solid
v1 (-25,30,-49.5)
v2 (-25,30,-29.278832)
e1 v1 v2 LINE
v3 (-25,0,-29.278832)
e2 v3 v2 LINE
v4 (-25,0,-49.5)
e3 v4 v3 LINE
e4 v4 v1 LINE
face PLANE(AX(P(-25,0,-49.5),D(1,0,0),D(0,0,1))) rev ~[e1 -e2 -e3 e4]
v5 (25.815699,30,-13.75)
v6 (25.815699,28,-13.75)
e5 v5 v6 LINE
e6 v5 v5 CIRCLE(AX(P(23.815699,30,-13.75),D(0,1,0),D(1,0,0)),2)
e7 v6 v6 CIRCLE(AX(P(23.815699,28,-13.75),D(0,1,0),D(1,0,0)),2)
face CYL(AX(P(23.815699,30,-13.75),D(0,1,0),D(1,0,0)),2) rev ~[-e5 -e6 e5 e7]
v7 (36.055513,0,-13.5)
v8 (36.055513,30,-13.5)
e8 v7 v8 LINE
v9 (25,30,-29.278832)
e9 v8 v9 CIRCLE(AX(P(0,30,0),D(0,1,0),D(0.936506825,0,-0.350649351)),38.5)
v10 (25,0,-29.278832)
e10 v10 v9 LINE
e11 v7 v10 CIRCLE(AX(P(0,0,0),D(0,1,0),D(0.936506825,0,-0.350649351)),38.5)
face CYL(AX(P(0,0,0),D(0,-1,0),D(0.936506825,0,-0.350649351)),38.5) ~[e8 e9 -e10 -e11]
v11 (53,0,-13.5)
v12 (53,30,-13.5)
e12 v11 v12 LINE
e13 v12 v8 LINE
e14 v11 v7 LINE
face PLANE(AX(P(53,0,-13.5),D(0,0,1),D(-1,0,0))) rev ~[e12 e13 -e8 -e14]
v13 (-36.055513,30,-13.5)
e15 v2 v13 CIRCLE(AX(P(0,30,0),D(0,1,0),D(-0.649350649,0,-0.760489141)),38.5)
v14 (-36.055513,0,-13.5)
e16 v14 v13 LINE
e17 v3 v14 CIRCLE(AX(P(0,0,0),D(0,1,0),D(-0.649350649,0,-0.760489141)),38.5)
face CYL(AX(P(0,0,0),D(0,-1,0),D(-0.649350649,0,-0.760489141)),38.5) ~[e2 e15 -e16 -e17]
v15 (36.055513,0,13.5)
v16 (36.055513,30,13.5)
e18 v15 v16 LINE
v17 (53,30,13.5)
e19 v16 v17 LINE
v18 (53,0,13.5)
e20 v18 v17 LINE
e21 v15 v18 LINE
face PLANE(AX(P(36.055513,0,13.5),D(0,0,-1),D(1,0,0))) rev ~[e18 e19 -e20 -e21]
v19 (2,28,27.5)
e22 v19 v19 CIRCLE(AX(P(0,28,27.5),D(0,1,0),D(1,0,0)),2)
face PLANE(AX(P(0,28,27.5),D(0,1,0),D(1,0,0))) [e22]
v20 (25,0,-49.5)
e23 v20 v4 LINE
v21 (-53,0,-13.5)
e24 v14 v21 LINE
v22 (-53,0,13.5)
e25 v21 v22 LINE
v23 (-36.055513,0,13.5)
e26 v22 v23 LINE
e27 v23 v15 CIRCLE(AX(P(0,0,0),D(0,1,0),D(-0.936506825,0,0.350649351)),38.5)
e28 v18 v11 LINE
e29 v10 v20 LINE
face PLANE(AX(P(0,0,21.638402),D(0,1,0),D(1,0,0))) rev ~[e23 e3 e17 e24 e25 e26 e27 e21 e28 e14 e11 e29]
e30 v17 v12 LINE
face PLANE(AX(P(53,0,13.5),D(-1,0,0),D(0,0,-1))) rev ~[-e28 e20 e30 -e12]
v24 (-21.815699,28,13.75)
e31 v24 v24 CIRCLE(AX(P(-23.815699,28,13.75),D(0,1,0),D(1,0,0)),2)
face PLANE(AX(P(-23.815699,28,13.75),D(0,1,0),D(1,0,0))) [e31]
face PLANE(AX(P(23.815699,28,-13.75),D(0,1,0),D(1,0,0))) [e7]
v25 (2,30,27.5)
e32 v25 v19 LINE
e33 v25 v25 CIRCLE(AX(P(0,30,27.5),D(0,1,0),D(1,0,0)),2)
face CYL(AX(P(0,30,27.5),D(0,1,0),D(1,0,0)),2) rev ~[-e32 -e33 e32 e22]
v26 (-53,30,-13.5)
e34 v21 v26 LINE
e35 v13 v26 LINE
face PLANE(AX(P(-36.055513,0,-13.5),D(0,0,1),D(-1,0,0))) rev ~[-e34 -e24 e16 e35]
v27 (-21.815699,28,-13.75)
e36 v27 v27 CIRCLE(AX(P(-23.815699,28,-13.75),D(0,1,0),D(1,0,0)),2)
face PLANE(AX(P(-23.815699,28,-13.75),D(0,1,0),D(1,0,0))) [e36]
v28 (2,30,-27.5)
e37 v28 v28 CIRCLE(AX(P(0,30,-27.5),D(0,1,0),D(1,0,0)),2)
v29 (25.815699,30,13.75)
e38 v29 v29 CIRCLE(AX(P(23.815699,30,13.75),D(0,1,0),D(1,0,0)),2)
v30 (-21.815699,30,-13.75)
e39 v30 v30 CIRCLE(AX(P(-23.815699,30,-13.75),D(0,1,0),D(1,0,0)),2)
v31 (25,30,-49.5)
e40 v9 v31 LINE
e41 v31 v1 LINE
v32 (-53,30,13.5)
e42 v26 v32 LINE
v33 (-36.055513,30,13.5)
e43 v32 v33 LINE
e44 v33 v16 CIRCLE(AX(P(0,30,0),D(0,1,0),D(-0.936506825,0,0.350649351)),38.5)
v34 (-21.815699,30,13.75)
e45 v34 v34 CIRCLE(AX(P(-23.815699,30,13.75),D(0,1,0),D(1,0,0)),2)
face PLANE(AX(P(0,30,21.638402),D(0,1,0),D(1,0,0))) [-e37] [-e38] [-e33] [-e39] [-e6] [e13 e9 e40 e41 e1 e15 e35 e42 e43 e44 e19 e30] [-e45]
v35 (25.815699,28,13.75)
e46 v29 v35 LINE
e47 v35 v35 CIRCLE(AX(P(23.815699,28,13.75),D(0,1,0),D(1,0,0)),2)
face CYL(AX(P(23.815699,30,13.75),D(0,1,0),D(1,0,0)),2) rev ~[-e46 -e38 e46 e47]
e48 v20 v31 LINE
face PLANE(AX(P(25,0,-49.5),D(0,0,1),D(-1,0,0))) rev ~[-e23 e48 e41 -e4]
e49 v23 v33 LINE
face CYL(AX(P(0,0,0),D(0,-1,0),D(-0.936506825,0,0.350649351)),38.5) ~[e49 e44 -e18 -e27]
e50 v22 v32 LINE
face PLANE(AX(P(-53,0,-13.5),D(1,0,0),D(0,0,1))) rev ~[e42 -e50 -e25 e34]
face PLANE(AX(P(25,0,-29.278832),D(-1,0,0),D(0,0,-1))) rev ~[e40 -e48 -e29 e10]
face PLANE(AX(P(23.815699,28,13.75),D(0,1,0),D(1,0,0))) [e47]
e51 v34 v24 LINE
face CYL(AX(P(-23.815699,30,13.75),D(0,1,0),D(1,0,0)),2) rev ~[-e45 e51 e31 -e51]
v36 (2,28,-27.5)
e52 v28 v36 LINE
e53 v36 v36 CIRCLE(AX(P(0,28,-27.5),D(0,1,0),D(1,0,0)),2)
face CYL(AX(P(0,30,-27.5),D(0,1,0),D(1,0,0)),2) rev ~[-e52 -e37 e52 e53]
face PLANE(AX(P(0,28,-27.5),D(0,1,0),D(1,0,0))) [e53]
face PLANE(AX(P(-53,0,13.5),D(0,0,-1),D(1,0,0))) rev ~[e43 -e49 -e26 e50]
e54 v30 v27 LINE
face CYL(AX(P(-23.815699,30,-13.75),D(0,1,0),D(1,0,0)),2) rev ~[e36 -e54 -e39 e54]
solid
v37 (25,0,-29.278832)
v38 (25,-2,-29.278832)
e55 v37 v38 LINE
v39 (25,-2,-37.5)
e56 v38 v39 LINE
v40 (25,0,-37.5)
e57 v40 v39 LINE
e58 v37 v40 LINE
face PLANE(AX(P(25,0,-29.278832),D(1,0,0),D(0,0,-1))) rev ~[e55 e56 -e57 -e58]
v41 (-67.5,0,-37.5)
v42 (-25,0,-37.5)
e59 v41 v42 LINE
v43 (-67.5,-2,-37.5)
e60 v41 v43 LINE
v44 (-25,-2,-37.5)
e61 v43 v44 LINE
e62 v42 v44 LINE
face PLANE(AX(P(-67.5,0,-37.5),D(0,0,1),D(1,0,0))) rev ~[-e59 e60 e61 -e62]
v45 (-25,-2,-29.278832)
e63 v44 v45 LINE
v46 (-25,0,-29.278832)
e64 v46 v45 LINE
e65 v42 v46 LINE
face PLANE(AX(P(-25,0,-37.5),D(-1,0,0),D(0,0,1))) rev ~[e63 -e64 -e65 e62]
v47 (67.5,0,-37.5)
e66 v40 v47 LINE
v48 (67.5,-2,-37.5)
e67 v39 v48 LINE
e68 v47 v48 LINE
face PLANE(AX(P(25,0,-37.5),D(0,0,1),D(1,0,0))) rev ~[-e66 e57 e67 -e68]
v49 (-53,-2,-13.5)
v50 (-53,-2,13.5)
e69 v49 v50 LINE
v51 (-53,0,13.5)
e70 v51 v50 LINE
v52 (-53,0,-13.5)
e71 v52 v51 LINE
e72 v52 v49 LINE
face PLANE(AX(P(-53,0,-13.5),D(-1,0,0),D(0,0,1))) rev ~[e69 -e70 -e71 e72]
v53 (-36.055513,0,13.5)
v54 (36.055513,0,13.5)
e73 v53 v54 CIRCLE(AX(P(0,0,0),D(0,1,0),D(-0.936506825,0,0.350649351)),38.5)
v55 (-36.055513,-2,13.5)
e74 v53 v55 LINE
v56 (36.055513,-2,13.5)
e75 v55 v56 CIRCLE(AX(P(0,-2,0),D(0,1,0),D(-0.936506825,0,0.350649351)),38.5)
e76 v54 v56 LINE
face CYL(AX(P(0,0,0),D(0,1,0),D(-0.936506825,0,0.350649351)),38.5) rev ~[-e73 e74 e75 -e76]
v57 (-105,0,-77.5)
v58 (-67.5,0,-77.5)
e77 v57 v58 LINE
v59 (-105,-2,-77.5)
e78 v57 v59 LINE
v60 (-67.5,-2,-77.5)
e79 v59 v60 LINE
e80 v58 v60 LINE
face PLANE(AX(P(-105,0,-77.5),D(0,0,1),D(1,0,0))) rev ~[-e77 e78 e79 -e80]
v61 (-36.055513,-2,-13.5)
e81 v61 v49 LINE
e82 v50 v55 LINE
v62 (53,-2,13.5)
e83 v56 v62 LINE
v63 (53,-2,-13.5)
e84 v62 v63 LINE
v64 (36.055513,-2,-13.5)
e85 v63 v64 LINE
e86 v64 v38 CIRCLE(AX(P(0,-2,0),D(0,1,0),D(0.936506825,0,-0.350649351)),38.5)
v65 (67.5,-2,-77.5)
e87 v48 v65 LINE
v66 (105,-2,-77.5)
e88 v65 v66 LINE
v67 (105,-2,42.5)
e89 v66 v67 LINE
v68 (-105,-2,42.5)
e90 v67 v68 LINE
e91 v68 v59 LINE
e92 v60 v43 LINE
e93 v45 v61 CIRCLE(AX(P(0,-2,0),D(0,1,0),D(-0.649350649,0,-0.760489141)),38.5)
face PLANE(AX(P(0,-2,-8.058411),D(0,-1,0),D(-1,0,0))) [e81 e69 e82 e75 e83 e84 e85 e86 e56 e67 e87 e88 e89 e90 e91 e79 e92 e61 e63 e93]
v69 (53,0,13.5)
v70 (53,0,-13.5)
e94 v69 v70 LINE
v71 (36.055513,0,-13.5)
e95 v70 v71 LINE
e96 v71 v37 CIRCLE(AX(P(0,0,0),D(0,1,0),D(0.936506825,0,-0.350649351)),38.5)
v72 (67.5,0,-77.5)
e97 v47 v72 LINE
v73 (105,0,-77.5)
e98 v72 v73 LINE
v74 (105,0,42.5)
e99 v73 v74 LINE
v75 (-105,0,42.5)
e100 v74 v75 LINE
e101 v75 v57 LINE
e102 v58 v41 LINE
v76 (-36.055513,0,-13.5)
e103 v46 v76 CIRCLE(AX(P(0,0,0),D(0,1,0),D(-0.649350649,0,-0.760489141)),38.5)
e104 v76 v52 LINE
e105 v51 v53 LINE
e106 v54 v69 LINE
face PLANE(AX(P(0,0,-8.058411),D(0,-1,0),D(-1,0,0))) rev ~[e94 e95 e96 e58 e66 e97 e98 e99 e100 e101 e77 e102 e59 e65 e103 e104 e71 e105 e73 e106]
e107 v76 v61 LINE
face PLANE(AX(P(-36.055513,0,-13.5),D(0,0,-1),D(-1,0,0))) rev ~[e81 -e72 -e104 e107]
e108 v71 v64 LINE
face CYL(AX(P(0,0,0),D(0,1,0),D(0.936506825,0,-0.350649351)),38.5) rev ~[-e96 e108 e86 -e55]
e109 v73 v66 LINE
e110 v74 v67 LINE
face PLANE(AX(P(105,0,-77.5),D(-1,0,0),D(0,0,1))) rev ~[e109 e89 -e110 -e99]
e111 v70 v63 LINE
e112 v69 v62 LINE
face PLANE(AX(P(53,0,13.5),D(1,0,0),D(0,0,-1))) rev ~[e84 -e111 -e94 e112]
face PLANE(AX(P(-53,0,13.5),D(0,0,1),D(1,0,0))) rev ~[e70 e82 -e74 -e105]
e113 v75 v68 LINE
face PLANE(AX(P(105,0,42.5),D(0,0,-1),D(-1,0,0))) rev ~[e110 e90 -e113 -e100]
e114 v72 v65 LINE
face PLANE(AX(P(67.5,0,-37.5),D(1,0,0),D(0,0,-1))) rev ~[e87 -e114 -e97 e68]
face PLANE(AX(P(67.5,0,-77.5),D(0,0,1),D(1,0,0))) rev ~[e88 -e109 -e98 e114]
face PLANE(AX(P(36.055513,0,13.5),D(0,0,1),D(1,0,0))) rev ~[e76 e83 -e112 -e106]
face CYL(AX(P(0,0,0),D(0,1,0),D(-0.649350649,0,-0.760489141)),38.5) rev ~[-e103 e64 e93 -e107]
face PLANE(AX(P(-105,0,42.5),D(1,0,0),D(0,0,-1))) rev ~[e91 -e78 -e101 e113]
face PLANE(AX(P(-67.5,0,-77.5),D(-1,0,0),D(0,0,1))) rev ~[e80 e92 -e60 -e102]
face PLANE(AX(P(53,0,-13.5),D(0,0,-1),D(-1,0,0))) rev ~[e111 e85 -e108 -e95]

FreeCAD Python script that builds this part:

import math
import FreeCAD as App
import Part
import Sketcher

doc = App.newDocument("Part")
body = doc.addObject("PartDesign::Body", "Body")

# Sketch on XZ plane
sketch1 = body.newObject("Sketcher::SketchObject", "Sketch")
sketch1.AttachmentSupport = (doc.getObject("XZ_Plane"), [""])
sketch1.MapMode = "FlatFace"
sketch1.addGeometry([
    Part.ArcOfCircle(Part.Circle(App.Vector(0, 0, 0), App.Vector(0, 0, 1), 38.5), math.radians(20.527037), math.radians(159.472963)),  # 0
    Part.LineSegment(App.Vector(36.055513, 13.5, 0), App.Vector(53, 13.5, 0)),  # 1
    Part.LineSegment(App.Vector(53, 13.5, 0), App.Vector(53, -13.5, 0)),  # 2
    Part.LineSegment(App.Vector(53, -13.5, 0), App.Vector(36.055513, -13.5, 0)),  # 3
    Part.ArcOfCircle(Part.Circle(App.Vector(0, 0, 0), App.Vector(0, 0, 1), 38.5), math.radians(-49.507339), math.radians(-20.527037)),  # 4
    Part.LineSegment(App.Vector(25, -29.278832, 0), App.Vector(25, -49.5, 0)),  # 5
    Part.LineSegment(App.Vector(25, -49.5, 0), App.Vector(-25, -49.5, 0)),  # 6
    Part.LineSegment(App.Vector(-25, -49.5, 0), App.Vector(-25, -29.278832, 0)),  # 7
    Part.ArcOfCircle(Part.Circle(App.Vector(0, 0, 0), App.Vector(0, 0, 1), 38.5), math.radians(-159.472963), math.radians(-130.492661)),  # 8
    Part.LineSegment(App.Vector(-36.055513, -13.5, 0), App.Vector(-53, -13.5, 0)),  # 9
    Part.LineSegment(App.Vector(-53, -13.5, 0), App.Vector(-53, 13.5, 0)),  # 10
    Part.LineSegment(App.Vector(-53, 13.5, 0), App.Vector(-36.055513, 13.5, 0)),  # 11
], False)
sketch1.addConstraint([
    Sketcher.Constraint("Coincident", 0, 1, 1, 1),
    Sketcher.Constraint("Coincident", 1, 2, 2, 1),
    Sketcher.Constraint("Coincident", 2, 2, 3, 1),
    Sketcher.Constraint("Coincident", 3, 2, 4, 2),
    Sketcher.Constraint("Coincident", 4, 1, 5, 1),
    Sketcher.Constraint("Coincident", 5, 2, 6, 1),
    Sketcher.Constraint("Coincident", 6, 2, 7, 1),
    Sketcher.Constraint("Coincident", 7, 2, 8, 2),
    Sketcher.Constraint("Coincident", 8, 1, 9, 1),
    Sketcher.Constraint("Coincident", 9, 2, 10, 1),
    Sketcher.Constraint("Coincident", 10, 2, 11, 1),
    Sketcher.Constraint("Coincident", 11, 2, 0, 2),
    Sketcher.Constraint("Horizontal", 1),
    Sketcher.Constraint("Vertical", 2),
    Sketcher.Constraint("Horizontal", 3),
    Sketcher.Constraint("Vertical", 5),
    Sketcher.Constraint("Horizontal", 6),
    Sketcher.Constraint("Vertical", 7),
    Sketcher.Constraint("Horizontal", 9),
    Sketcher.Constraint("Vertical", 10),
    Sketcher.Constraint("Horizontal", 11),
    Sketcher.Constraint("Coincident", 0, 3, -1, 1),
    Sketcher.Constraint("Coincident", 4, 3, -1, 1),
    Sketcher.Constraint("Coincident", 8, 3, -1, 1),
    Sketcher.Constraint("Equal", 0, 4),
    Sketcher.Constraint("Equal", 4, 8),
    Sketcher.Constraint("Symmetric", 1, 2, 9, 2, -1, 1),
    Sketcher.Constraint("Horizontal", 4, 1, 7, 2),
    Sketcher.Constraint("Horizontal", 3, 2, 8, 1),
    Sketcher.Constraint("Horizontal", 1, 2, 10, 2),
    Sketcher.Constraint("Radius", 0, 38.5),
    Sketcher.Constraint("DistanceX", 6, 2, 6, 1, 50.0),
    Sketcher.Constraint("DistanceY", 2, 2, 2, 1, 27.0),
    Sketcher.Constraint("DistanceX", -1, 1, 1, 2, 53.0),
    Sketcher.Constraint("DistanceY", 5, 2, 3, 2, 36.0),
])
pad1 = body.newObject("PartDesign::Pad", "Pad")
pad1.Profile = sketch1
pad1.Length = 30
pad1.Reversed = True

# Sketch on XZ plane
sketch2 = body.newObject("Sketcher::SketchObject", "Sketch001")
sketch2.AttachmentSupport = (doc.getObject("XZ_Plane"), [""])
sketch2.MapMode = "FlatFace"
sketch2.AttachmentOffset = App.Placement(App.Vector(0, 0, -30), App.Rotation())
sketch2.addGeometry([
    Part.Circle(App.Vector(0, -27.5, 0), App.Vector(0, 0, 1), 2),  # 0
    Part.Circle(App.Vector(23.815699, -13.75, 0), App.Vector(0, 0, 1), 2),  # 1
    Part.Circle(App.Vector(23.815699, 13.75, 0), App.Vector(0, 0, 1), 2),  # 2
    Part.Circle(App.Vector(0, 27.5, 0), App.Vector(0, 0, 1), 2),  # 3
    Part.Circle(App.Vector(-23.815699, 13.75, 0), App.Vector(0, 0, 1), 2),  # 4
    Part.Circle(App.Vector(-23.815699, -13.75, 0), App.Vector(0, 0, 1), 2),  # 5
], False)
sketch2.addConstraint([
    Sketcher.Constraint("Equal", 0, 1),
    Sketcher.Constraint("Equal", 1, 2),
    Sketcher.Constraint("Equal", 2, 3),
    Sketcher.Constraint("Equal", 3, 4),
    Sketcher.Constraint("Equal", 4, 5),
    Sketcher.Constraint("Symmetric", 0, 3, 3, 3, -1, 1),
    Sketcher.Constraint("Symmetric", 1, 3, 4, 3, -1, 1),
    Sketcher.Constraint("Symmetric", 2, 3, 5, 3, -1, 1),
    Sketcher.Constraint("Symmetric", 2, 3, 4, 3, -2),
    Sketcher.Constraint("PointOnObject", 0, 3, -2),
    Sketcher.Constraint("Diameter", 0, 4.0),
    Sketcher.Constraint("DistanceY", 0, 3, 3, 3, 55.0),
    Sketcher.Constraint("DistanceY", 1, 3, 2, 3, 27.5),
    Sketcher.Constraint("DistanceX", -1, 1, 1, 3, 23.815699),
])
pocket1 = body.newObject("PartDesign::Pocket", "Pocket")
pocket1.Profile = sketch2
pocket1.Length = 2
pocket1.Reversed = True
body2 = doc.addObject("PartDesign::Body", "Body001")

# Sketch on XZ plane
sketch3 = body2.newObject("Sketcher::SketchObject", "Sketch002")
sketch3.AttachmentSupport = (doc.getObject("XZ_Plane001"), [""])
sketch3.MapMode = "FlatFace"
sketch3.addGeometry([
    Part.LineSegment(App.Vector(105, 42.5, 0), App.Vector(-105, 42.5, 0)),  # 0
    Part.LineSegment(App.Vector(-105, 42.5, 0), App.Vector(-105, -77.5, 0)),  # 1
    Part.LineSegment(App.Vector(-105, -77.5, 0), App.Vector(-67.5, -77.5, 0)),  # 2
    Part.LineSegment(App.Vector(-67.5, -77.5, 0), App.Vector(-67.5, -37.5, 0)),  # 3
    Part.LineSegment(App.Vector(-67.5, -37.5, 0), App.Vector(-25, -37.5, 0)),  # 4
    Part.LineSegment(App.Vector(-25, -37.5, 0), App.Vector(-25, -29.278832, 0)),  # 5
    Part.ArcOfCircle(Part.Circle(App.Vector(0, 0, 0), App.Vector(0, 0, 1), 38.5), math.radians(-159.472963), math.radians(-130.492661)),  # 6
    Part.LineSegment(App.Vector(-36.055513, -13.5, 0), App.Vector(-53, -13.5, 0)),  # 7
    Part.LineSegment(App.Vector(-53, -13.5, 0), App.Vector(-53, 13.5, 0)),  # 8
    Part.LineSegment(App.Vector(-53, 13.5, 0), App.Vector(-36.055513, 13.5, 0)),  # 9
    Part.ArcOfCircle(Part.Circle(App.Vector(0, 0, 0), App.Vector(0, 0, 1), 38.5), math.radians(20.527037), math.radians(159.472963)),  # 10
    Part.LineSegment(App.Vector(36.055513, 13.5, 0), App.Vector(53, 13.5, 0)),  # 11
    Part.LineSegment(App.Vector(53, 13.5, 0), App.Vector(53, -13.5, 0)),  # 12
    Part.LineSegment(App.Vector(53, -13.5, 0), App.Vector(36.055513, -13.5, 0)),  # 13
    Part.ArcOfCircle(Part.Circle(App.Vector(0, 0, 0), App.Vector(0, 0, 1), 38.5), math.radians(-49.507339), math.radians(-20.527037)),  # 14
    Part.LineSegment(App.Vector(25, -29.278832, 0), App.Vector(25, -37.5, 0)),  # 15
    Part.LineSegment(App.Vector(25, -37.5, 0), App.Vector(67.5, -37.5, 0)),  # 16
    Part.LineSegment(App.Vector(67.5, -37.5, 0), App.Vector(67.5, -77.5, 0)),  # 17
    Part.LineSegment(App.Vector(67.5, -77.5, 0), App.Vector(105, -77.5, 0)),  # 18
    Part.LineSegment(App.Vector(105, -77.5, 0), App.Vector(105, 42.5, 0)),  # 19
], False)
sketch3.addConstraint([
    Sketcher.Constraint("Coincident", 0, 2, 1, 1),
    Sketcher.Constraint("Coincident", 1, 2, 2, 1),
    Sketcher.Constraint("Coincident", 2, 2, 3, 1),
    Sketcher.Constraint("Coincident", 3, 2, 4, 1),
    Sketcher.Constraint("Coincident", 4, 2, 5, 1),
    Sketcher.Constraint("Coincident", 5, 2, 6, 2),
    Sketcher.Constraint("Coincident", 6, 1, 7, 1),
    Sketcher.Constraint("Coincident", 7, 2, 8, 1),
    Sketcher.Constraint("Coincident", 8, 2, 9, 1),
    Sketcher.Constraint("Coincident", 9, 2, 10, 2),
    Sketcher.Constraint("Coincident", 10, 1, 11, 1),
    Sketcher.Constraint("Coincident", 11, 2, 12, 1),
    Sketcher.Constraint("Coincident", 12, 2, 13, 1),
    Sketcher.Constraint("Coincident", 13, 2, 14, 2),
    Sketcher.Constraint("Coincident", 14, 1, 15, 1),
    Sketcher.Constraint("Coincident", 15, 2, 16, 1),
    Sketcher.Constraint("Coincident", 16, 2, 17, 1),
    Sketcher.Constraint("Coincident", 17, 2, 18, 1),
    Sketcher.Constraint("Coincident", 18, 2, 19, 1),
    Sketcher.Constraint("Coincident", 19, 2, 0, 1),
    Sketcher.Constraint("Horizontal", 0),
    Sketcher.Constraint("Vertical", 1),
    Sketcher.Constraint("Horizontal", 2),
    Sketcher.Constraint("Vertical", 3),
    Sketcher.Constraint("Horizontal", 4),
    Sketcher.Constraint("Vertical", 5),
    Sketcher.Constraint("Horizontal", 7),
    Sketcher.Constraint("Vertical", 8),
    Sketcher.Constraint("Horizontal", 9),
    Sketcher.Constraint("Horizontal", 11),
    Sketcher.Constraint("Vertical", 12),
    Sketcher.Constraint("Horizontal", 13),
    Sketcher.Constraint("Vertical", 15),
    Sketcher.Constraint("Horizontal", 16),
    Sketcher.Constraint("Vertical", 17),
    Sketcher.Constraint("Horizontal", 18),
    Sketcher.Constraint("Vertical", 19),
    Sketcher.Constraint("Coincident", 6, 3, -1, 1),
    Sketcher.Constraint("Coincident", 10, 3, -1, 1),
    Sketcher.Constraint("Coincident", 14, 3, -1, 1),
    Sketcher.Constraint("Equal", 6, 10),
    Sketcher.Constraint("Equal", 10, 14),
    Sketcher.Constraint("Symmetric", 7, 2, 11, 2, -1, 1),
    Sketcher.Constraint("Symmetric", 4, 2, 15, 2, -2),
    Sketcher.Constraint("Symmetric", 2, 2, 17, 2, -2),
    Sketcher.Constraint("Horizontal", 9, 2, 10, 1),
    Sketcher.Constraint("Horizontal", 7, 2, 12, 2),
    Sketcher.Constraint("Equal", 2, 18),
    Sketcher.Constraint("Radius", 6, 38.5),
    Sketcher.Constraint("DistanceX", 0, 2, 0, 1, 210.0),
    Sketcher.Constraint("DistanceY", 1, 2, 1, 1, 120.0),
    Sketcher.Constraint("DistanceY", 3, 1, 3, 2, 40.0),
    Sketcher.Constraint("DistanceY", 8, 1, 8, 2, 27.0),
    Sketcher.Constraint("DistanceX", 2, 1, 2, 2, 37.5),
    Sketcher.Constraint("DistanceX", 4, 1, 4, 2, 42.5),
    Sketcher.Constraint("DistanceX", 7, 2, -1, 1, 53.0),
    Sketcher.Constraint("DistanceY", 4, 2, 6, 1, 24.0),
])
pad2 = body2.newObject("PartDesign::Pad", "Pad001")
pad2.Profile = sketch3
pad2.Length = 2

doc.recompute()
